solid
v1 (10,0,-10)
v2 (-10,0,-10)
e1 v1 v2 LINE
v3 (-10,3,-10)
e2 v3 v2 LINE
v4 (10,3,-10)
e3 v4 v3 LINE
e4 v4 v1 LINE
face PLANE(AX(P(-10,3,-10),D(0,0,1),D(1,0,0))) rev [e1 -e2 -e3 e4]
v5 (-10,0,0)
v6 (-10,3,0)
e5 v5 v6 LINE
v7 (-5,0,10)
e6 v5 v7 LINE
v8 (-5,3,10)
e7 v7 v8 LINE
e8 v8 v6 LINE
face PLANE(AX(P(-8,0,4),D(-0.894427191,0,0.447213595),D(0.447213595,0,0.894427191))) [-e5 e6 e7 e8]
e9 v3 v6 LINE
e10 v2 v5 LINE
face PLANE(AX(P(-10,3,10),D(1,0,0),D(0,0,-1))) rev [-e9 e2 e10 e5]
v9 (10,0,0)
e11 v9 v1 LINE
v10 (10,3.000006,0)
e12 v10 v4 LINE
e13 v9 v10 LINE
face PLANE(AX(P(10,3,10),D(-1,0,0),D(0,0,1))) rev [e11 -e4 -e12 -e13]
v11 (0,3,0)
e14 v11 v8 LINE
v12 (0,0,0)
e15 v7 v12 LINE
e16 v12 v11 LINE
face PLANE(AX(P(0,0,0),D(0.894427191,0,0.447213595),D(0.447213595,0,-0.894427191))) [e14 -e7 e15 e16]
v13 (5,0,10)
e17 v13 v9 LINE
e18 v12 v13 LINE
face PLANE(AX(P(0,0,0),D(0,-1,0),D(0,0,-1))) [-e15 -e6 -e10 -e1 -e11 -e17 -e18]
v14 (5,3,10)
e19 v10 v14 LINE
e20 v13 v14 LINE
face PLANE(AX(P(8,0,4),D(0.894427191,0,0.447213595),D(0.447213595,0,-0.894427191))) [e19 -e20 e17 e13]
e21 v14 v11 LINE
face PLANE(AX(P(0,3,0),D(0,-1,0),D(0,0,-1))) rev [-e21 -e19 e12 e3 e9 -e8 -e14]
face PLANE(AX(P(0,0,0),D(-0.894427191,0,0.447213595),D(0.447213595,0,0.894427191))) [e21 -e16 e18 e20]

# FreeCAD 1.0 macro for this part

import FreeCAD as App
import Part
import Sketcher
Q = App.Units.Quantity

doc = App.newDocument("Part")
body = doc.addObject("PartDesign::Body", "Body")

# Sketch on XZ plane
sketch1 = doc.addObject("Sketcher::SketchObject", "Sketch")
body.addObject(sketch1)
sketch1.AttachmentSupport = (doc.XZ_Plane, [""])
sketch1.MapMode = "FlatFace"
sketch1.addGeometry([
    Part.LineSegment(App.Vector(-10, -10, 0), App.Vector(-10, 10, 0)),
    Part.LineSegment(App.Vector(-10, 10, 0), App.Vector(10, 10, 0)),
    Part.LineSegment(App.Vector(10, 10, 0), App.Vector(10, -10, 0)),
    Part.LineSegment(App.Vector(10, -10, 0), App.Vector(-10, -10, 0)),
], False)
sketch1.addConstraint([
    Sketcher.Constraint("Coincident", 0, 2, 1, 1),
    Sketcher.Constraint("Coincident", 1, 2, 2, 1),
    Sketcher.Constraint("Coincident", 2, 2, 3, 1),
    Sketcher.Constraint("Coincident", 3, 2, 0, 1),
    Sketcher.Constraint("Vertical", 0),
    Sketcher.Constraint("Horizontal", 1),
    Sketcher.Constraint("Vertical", 2),
    Sketcher.Constraint("Horizontal", 3),
    Sketcher.Constraint("Symmetric", 0, 2, 2, 2, -1, 1),
    Sketcher.Constraint("Equal", 3, 0),
    Sketcher.Constraint("DistanceX", 1, 1, 1, 2, Q("20 mm")),
])
pad1 = doc.addObject("PartDesign::Pad", "Pad")
body.addObject(pad1)
pad1.Profile = sketch1
pad1.Length = 3
pad1.Reversed = True

# Sketch on XZ plane
sketch2 = doc.addObject("Sketcher::SketchObject", "Sketch001")
body.addObject(sketch2)
sketch2.AttachmentSupport = (doc.XZ_Plane, [""])
sketch2.MapMode = "FlatFace"
sketch2.AttachmentOffset = App.Placement(App.Vector(0, 0, -3), App.Rotation())
sketch2.addGeometry([
    Part.LineSegment(App.Vector(-5, 10, 0), App.Vector(-10, 0, 0)),  # 0
    Part.LineSegment(App.Vector(-10, 0, 0), App.Vector(-10, 10, 0)),  # 1
    Part.LineSegment(App.Vector(-10, 10, 0), App.Vector(-5, 10, 0)),  # 2
    Part.LineSegment(App.Vector(0, 0, 0), App.Vector(-5, 10, 0)),  # 3
    Part.LineSegment(App.Vector(-5, 10, 0), App.Vector(5, 10, 0)),  # 4
    Part.LineSegment(App.Vector(5, 10, 0), App.Vector(0, 0, 0)),  # 5
    Part.LineSegment(App.Vector(10, 0, 0), App.Vector(5, 10, 0)),  # 6
    Part.LineSegment(App.Vector(5, 10, 0), App.Vector(10, 10, 0)),  # 7
    Part.LineSegment(App.Vector(10, 10, 0), App.Vector(10, 0, 0)),  # 8
], False)
sketch2.addConstraint([
    Sketcher.Constraint("Coincident", 0, 2, 1, 1),
    Sketcher.Constraint("Coincident", 1, 2, 2, 1),
    Sketcher.Constraint("Coincident", 2, 2, 0, 1),
    Sketcher.Constraint("Coincident", 3, 2, 4, 1),
    Sketcher.Constraint("Coincident", 4, 2, 5, 1),
    Sketcher.Constraint("Coincident", 5, 2, 3, 1),
    Sketcher.Constraint("Coincident", 6, 2, 7, 1),
    Sketcher.Constraint("Coincident", 7, 2, 8, 1),
    Sketcher.Constraint("Coincident", 8, 2, 6, 1),
    Sketcher.Constraint("Vertical", 1),
    Sketcher.Constraint("Horizontal", 2),
    Sketcher.Constraint("Horizontal", 4),
    Sketcher.Constraint("Horizontal", 7),
    Sketcher.Constraint("Vertical", 8),
    Sketcher.Constraint("Coincident", 5, 2, -1, 1),
    Sketcher.Constraint("Coincident", 3, 2, 2, 2),
    Sketcher.Constraint("Coincident", 6, 2, 4, 2),
    Sketcher.Constraint("Symmetric", 0, 2, 8, 2, -1, 1),
    Sketcher.Constraint("PointOnObject", 0, 2, -1),
    Sketcher.Constraint("Parallel", 0, 5),
    Sketcher.Constraint("Equal", 2, 7),
    Sketcher.Constraint("Equal", 4, 1),
    Sketcher.Constraint("DistanceX", 2, 1, 2, 2, Q("5 mm")),
])
pocket1 = doc.addObject("PartDesign::Pocket", "Pocket")
body.addObject(pocket1)
pocket1.Profile = sketch2
pocket1.Type = "ThroughAll"
pocket1.Midplane = True

doc.recompute()
